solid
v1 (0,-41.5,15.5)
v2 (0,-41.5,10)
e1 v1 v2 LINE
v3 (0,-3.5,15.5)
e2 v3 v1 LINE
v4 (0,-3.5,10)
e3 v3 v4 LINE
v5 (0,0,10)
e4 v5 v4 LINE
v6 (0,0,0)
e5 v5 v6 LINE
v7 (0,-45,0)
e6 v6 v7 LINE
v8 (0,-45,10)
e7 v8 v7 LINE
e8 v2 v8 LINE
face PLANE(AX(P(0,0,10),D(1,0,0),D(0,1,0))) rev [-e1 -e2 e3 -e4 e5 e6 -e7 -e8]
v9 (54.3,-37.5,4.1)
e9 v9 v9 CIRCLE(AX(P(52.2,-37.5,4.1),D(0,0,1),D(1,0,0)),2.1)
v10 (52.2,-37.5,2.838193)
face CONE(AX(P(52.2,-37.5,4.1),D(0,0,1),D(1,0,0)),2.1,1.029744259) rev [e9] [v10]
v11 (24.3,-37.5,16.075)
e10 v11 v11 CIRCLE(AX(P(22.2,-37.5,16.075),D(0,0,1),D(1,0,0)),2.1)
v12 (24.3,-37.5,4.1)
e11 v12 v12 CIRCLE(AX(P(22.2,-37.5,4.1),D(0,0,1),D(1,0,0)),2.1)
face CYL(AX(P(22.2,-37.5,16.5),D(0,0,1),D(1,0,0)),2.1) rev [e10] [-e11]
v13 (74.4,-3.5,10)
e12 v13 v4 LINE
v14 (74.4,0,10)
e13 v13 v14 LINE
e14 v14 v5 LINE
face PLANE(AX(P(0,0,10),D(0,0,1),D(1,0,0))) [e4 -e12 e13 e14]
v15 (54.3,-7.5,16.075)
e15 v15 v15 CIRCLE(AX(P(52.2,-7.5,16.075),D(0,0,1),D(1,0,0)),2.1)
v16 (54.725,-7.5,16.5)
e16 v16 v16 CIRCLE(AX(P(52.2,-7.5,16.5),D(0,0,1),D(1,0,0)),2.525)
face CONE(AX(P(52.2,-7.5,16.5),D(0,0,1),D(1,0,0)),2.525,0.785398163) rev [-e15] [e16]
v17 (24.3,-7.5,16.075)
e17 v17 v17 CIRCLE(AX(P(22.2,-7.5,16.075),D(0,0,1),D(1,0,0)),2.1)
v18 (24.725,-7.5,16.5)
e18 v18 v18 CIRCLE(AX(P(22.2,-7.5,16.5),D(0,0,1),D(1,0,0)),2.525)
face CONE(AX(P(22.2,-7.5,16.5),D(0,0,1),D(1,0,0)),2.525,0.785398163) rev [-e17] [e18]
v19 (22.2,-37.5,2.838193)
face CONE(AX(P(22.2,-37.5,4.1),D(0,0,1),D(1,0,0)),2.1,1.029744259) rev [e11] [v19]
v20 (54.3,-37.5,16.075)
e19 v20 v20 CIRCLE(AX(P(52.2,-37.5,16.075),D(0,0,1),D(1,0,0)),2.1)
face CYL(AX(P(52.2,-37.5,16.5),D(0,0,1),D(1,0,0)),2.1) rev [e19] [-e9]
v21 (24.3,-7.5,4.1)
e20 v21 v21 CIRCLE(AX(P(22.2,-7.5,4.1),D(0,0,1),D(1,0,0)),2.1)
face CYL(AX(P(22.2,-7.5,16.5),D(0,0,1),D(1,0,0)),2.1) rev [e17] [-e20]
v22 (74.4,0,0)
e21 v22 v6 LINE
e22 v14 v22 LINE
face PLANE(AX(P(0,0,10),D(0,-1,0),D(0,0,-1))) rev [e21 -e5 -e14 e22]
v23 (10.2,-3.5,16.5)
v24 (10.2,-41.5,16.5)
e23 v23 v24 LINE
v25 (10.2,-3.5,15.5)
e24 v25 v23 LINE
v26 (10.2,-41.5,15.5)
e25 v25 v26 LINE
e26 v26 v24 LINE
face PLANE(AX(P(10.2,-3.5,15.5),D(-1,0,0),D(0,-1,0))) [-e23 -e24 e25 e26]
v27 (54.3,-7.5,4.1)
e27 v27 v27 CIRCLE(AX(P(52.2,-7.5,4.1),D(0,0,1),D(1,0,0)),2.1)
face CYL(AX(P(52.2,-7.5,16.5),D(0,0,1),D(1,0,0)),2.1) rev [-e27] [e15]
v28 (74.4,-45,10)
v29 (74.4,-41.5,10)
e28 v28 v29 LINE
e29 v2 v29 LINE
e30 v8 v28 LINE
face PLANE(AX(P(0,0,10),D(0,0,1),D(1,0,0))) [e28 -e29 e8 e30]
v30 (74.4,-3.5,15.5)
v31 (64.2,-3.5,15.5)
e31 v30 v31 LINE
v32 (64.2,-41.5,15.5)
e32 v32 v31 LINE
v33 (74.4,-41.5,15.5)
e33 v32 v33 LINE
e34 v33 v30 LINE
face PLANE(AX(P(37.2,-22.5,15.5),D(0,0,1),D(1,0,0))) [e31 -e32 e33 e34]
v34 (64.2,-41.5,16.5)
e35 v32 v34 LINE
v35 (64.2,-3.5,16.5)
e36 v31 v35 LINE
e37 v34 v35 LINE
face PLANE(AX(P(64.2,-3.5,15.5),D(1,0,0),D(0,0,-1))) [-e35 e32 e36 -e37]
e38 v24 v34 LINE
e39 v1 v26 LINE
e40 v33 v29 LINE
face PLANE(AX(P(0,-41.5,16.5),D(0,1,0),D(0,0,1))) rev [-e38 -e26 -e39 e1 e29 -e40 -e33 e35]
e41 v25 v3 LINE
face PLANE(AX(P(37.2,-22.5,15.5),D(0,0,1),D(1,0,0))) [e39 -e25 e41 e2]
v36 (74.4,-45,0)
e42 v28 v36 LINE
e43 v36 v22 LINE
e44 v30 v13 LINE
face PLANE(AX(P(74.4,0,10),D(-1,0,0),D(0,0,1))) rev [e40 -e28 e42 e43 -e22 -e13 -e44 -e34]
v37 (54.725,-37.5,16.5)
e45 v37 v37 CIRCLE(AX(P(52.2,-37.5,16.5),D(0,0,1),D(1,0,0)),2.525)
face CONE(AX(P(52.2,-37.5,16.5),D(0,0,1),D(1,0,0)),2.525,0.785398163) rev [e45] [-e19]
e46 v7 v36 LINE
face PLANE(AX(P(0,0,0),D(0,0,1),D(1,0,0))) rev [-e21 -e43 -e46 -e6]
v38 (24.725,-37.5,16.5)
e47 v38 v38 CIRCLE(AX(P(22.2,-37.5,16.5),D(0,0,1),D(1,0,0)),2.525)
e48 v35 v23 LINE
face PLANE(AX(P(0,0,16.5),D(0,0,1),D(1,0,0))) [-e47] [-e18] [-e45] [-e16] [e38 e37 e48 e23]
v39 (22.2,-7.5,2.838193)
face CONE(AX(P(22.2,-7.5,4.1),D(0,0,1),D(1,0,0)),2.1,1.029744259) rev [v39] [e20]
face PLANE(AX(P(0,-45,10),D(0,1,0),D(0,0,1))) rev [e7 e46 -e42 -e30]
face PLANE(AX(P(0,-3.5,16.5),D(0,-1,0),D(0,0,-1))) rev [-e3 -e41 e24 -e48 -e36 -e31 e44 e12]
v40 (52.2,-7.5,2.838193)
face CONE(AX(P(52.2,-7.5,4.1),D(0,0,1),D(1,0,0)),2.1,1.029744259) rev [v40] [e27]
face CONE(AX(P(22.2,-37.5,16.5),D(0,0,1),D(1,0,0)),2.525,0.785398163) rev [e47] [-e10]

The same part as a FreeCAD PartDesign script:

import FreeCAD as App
import Part
import Sketcher
Q = App.Units.Quantity


def add_polygon(sketch, points):
    """Adds a closed chain of lines whose ends are joined by coincident constraints."""
    first, n = sketch.GeometryCount, len(points)
    for a, b in zip(points, points[1:] + points[:1]):
        sketch.addGeometry(Part.LineSegment(App.Vector(*a, 0), App.Vector(*b, 0)), False)
    for i in range(n):
        sketch.addConstraint(Sketcher.Constraint("Coincident", first + i, 2, first + (i + 1) % n, 1))

doc = App.newDocument("Part")
body = doc.addObject("PartDesign::Body", "Body")

sketch1 = body.newObject("Sketcher::SketchObject", "Sketch")
sketch1.AttachmentSupport = (doc.getObject("XY_Plane"), [""])
sketch1.MapMode = "FlatFace"
add_polygon(sketch1, [(0, 0), (0, -45), (74, -45), (74, 0)])
sketch1.addConstraint(Sketcher.Constraint("Vertical", 0))
sketch1.addConstraint(Sketcher.Constraint("Horizontal", 1))
sketch1.addConstraint(Sketcher.Constraint("Vertical", 2))
sketch1.addConstraint(Sketcher.Constraint("Horizontal", 3))
sketch1.addConstraint(Sketcher.Constraint("Coincident", 3, 2, -1, 1))
sketch1.addConstraint(Sketcher.Constraint("DistanceY", 0, 2, 0, 1, Q("45 mm")))
sketch1.addConstraint(Sketcher.Constraint("DistanceX", 1, 1, 1, 2, Q("74.4 mm")))
pad1 = body.newObject("PartDesign::Pad", "Pad")
pad1.Profile = sketch1
pad1.Length = 10

sketch2 = body.newObject("Sketcher::SketchObject", "Sketch001")
sketch2.AttachmentSupport = (doc.getObject("XY_Plane"), [""])
sketch2.MapMode = "FlatFace"
sketch2.AttachmentOffset = App.Placement(App.Vector(0, 0, 10), App.Rotation())
add_polygon(sketch2, [(0, -4), (0, -42), (74, -42), (74, -4)])
sketch2.addConstraint(Sketcher.Constraint("Vertical", 0))
sketch2.addConstraint(Sketcher.Constraint("Horizontal", 1))
sketch2.addConstraint(Sketcher.Constraint("Vertical", 2))
sketch2.addConstraint(Sketcher.Constraint("Horizontal", 3))
sketch2.addConstraint(Sketcher.Constraint("PointOnObject", 0, 2, -2))
sketch2.addConstraint(Sketcher.Constraint("DistanceY", 0, 2, 0, 1, Q("38 mm")))
sketch2.addConstraint(Sketcher.Constraint("DistanceX", 1, 1, 1, 2, Q("74.4 mm")))
sketch2.addConstraint(Sketcher.Constraint("DistanceY", 0, 2, -1, 1, Q("41.5 mm")))
pad2 = body.newObject("PartDesign::Pad", "Pad001")
pad2.Profile = sketch2
pad2.Length = 6.5

sketch3 = body.newObject("Sketcher::SketchObject", "Sketch002")
sketch3.AttachmentSupport = (doc.getObject("XY_Plane"), [""])
sketch3.MapMode = "FlatFace"
sketch3.AttachmentOffset = App.Placement(App.Vector(0, 0, 16.5), App.Rotation())
sketch3.addGeometry(Part.Circle(App.Vector(22.2, -7.5, 0), App.Vector(0, 0, 1), 2.1), False)
sketch3.addGeometry(Part.Circle(App.Vector(52.2, -7.5, 0), App.Vector(0, 0, 1), 2.1), False)
sketch3.addGeometry(Part.Circle(App.Vector(52.2, -37.5, 0), App.Vector(0, 0, 1), 2.1), False)
sketch3.addGeometry(Part.Circle(App.Vector(22.2, -37.5, 0), App.Vector(0, 0, 1), 2.1), False)
sketch3.addConstraint(Sketcher.Constraint("Equal", 0, 1))
sketch3.addConstraint(Sketcher.Constraint("Equal", 1, 2))
sketch3.addConstraint(Sketcher.Constraint("Equal", 2, 3))
sketch3.addConstraint(Sketcher.Constraint("Horizontal", 0, 3, 1, 3))
sketch3.addConstraint(Sketcher.Constraint("Horizontal", 2, 3, 3, 3))
sketch3.addConstraint(Sketcher.Constraint("Vertical", 1, 3, 2, 3))
sketch3.addConstraint(Sketcher.Constraint("Vertical", 0, 3, 3, 3))
sketch3.addConstraint(Sketcher.Constraint("Diameter", 0, Q("4.2 mm")))
sketch3.addConstraint(Sketcher.Constraint("DistanceX", 0, 3, 1, 3, Q("30 mm")))
sketch3.addConstraint(Sketcher.Constraint("DistanceY", 2, 3, 1, 3, Q("30 mm")))
sketch3.addConstraint(Sketcher.Constraint("DistanceX", -1, 1, 0, 3, Q("22.2 mm")))
sketch3.addConstraint(Sketcher.Constraint("DistanceY", 0, 3, -1, 1, Q("7.5 mm")))
doc.recompute()
hole = body.newObject("PartDesign::Hole", "Hole")
hole.Profile = sketch3
hole.ThreadType = "None"
hole.Diameter = 4.2
hole.DepthType = "Dimension"
hole.Depth = 12.4
hole.DrillPoint = "Angled"
hole.DrillPointAngle = 118
hole.HoleCutType = "Countersink"
hole.HoleCutDiameter = 5.05
hole.HoleCutCountersinkAngle = 90

sketch4 = body.newObject("Sketcher::SketchObject", "Sketch003")
sketch4.AttachmentSupport = (doc.getObject("XY_Plane"), [""])
sketch4.MapMode = "FlatFace"
sketch4.AttachmentOffset = App.Placement(App.Vector(0, 0, 16.5), App.Rotation())
add_polygon(sketch4, [(-10, 10), (-10, -55), (84, -55), (84, 10)])
add_polygon(sketch4, [(64, -42), (10, -42), (10, -4), (64, -4)])
sketch4.addConstraint(Sketcher.Constraint("Vertical", 0))
sketch4.addConstraint(Sketcher.Constraint("Horizontal", 1))
sketch4.addConstraint(Sketcher.Constraint("Vertical", 2))
sketch4.addConstraint(Sketcher.Constraint("Horizontal", 3))
sketch4.addConstraint(Sketcher.Constraint("Horizontal", 4))
sketch4.addConstraint(Sketcher.Constraint("Vertical", 5))
sketch4.addConstraint(Sketcher.Constraint("Horizontal", 6))
sketch4.addConstraint(Sketcher.Constraint("Vertical", 7))
sketch4.addConstraint(Sketcher.Constraint("DistanceX", 4, 2, 4, 1, Q("54 mm")))
sketch4.addConstraint(Sketcher.Constraint("DistanceY", 5, 1, 5, 2, Q("38 mm")))
sketch4.addConstraint(Sketcher.Constraint("DistanceX", 1, 1, 1, 2, Q("94.1 mm")))
sketch4.addConstraint(Sketcher.Constraint("DistanceY", 0, 2, 0, 1, Q("64.7 mm")))
sketch4.addConstraint(Sketcher.Constraint("DistanceX", -1, 1, 4, 2, Q("10.2 mm")))
sketch4.addConstraint(Sketcher.Constraint("DistanceY", 4, 2, -1, 1, Q("41.5 mm")))
sketch4.addConstraint(Sketcher.Constraint("DistanceX", 0, 2, -1, 1, Q("9.85 mm")))
sketch4.addConstraint(Sketcher.Constraint("DistanceY", 0, 2, -1, 1, Q("54.85 mm")))
pocket1 = body.newObject("PartDesign::Pocket", "Pocket")
pocket1.Profile = sketch4
pocket1.Length = 1

doc.recompute()
